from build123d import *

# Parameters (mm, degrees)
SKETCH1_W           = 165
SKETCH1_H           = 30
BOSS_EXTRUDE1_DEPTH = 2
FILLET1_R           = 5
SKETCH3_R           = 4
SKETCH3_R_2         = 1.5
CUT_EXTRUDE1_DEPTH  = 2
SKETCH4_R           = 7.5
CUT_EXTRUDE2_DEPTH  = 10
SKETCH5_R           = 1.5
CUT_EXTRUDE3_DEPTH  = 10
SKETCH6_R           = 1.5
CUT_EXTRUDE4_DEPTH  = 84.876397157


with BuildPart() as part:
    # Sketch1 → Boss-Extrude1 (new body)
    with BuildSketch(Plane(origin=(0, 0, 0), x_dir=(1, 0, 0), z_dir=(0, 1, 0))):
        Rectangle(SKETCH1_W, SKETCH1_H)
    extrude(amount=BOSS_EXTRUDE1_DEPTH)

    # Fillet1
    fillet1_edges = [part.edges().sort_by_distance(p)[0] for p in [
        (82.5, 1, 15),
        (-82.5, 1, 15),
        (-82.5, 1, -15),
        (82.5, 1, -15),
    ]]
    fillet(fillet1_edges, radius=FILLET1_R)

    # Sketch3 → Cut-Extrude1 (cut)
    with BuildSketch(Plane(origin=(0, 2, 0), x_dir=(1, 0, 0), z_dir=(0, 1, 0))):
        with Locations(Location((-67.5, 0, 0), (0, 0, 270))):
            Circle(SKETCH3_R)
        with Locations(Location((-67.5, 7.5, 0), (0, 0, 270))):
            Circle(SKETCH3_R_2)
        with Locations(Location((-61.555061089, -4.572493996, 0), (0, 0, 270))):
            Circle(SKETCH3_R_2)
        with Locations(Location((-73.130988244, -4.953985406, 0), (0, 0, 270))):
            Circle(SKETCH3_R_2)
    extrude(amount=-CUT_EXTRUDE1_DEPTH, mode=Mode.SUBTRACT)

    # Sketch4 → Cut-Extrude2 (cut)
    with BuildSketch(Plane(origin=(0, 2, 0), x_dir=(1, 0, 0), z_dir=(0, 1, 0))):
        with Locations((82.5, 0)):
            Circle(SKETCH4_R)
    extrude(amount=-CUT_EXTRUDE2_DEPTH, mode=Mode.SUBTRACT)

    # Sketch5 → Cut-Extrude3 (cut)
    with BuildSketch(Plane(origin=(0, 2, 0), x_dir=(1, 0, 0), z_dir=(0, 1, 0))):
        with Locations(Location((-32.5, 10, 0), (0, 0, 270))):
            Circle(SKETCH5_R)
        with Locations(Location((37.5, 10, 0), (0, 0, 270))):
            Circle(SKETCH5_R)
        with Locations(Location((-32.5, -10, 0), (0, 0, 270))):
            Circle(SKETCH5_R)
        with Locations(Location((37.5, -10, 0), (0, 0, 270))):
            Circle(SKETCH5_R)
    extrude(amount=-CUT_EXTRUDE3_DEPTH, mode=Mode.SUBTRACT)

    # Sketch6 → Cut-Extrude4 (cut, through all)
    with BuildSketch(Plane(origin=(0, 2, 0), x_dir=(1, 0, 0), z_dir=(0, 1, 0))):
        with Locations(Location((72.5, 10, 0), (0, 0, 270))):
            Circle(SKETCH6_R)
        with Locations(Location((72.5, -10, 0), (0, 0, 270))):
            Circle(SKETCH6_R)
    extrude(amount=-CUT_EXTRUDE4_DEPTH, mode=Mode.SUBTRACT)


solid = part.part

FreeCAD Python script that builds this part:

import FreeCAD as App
import Part
import Sketcher

V = App.Vector
Q = App.Units.Quantity


def edges_at(feature, points):
    """Names of the edges that pass closest to the given points."""
    edges = feature.Shape.Edges
    near = lambda p: min(range(len(edges)), key=lambda i: edges[i].distToShape(Part.Vertex(*p))[0])
    return sorted({f"Edge{near(p) + 1}" for p in points})


def add_polygon(sketch, points):
    """Adds a closed chain of lines whose ends are joined by coincident constraints."""
    first, n = sketch.GeometryCount, len(points)
    for a, b in zip(points, points[1:] + points[:1]):
        sketch.addGeometry(Part.LineSegment(App.Vector(*a, 0), App.Vector(*b, 0)), False)
    for i in range(n):
        sketch.addConstraint(Sketcher.Constraint("Coincident", first + i, 2, first + (i + 1) % n, 1))

doc = App.newDocument("Part")
params = doc.addObject("Spreadsheet::Sheet", "Params")
for row, (alias, value) in enumerate([
    ("sketch1_width", "165 mm"),
    ("sketch1_height", "30 mm"),
    ("pad1_length", "2 mm"),
    ("fillet_radius", "5 mm"),
    ("sketch2_diameter", "8 mm"),
    ("sketch2_diameter2", "3 mm"),
    ("pocket1_length", "2 mm"),
    ("sketch3_diameter", "15 mm"),
    ("pocket2_length", "10 mm"),
    ("sketch4_diameter", "3 mm"),
    ("pocket3_length", "10 mm"),
    ("sketch5_diameter", "3 mm"),
], start=1):
    params.set(f"A{row}", alias)
    params.set(f"B{row}", "=" + value)
    params.setAlias(f"B{row}", alias)

body = doc.addObject("PartDesign::Body", "Body")

# Sketch on XZ plane
sketch1 = body.newObject("Sketcher::SketchObject", "Sketch")
sketch1.AttachmentSupport = (doc.getObject("XZ_Plane"), [""])
sketch1.MapMode = "FlatFace"
add_polygon(sketch1, [(-82, -15), (-82, 15), (82, 15), (82, -15)])  # lines 0-3
sketch1.addConstraint([
    Sketcher.Constraint("Vertical", 0),
    Sketcher.Constraint("Horizontal", 1),
    Sketcher.Constraint("Vertical", 2),
    Sketcher.Constraint("Horizontal", 3),
    Sketcher.Constraint("Symmetric", 0, 2, 2, 2, -1, 1),
    Sketcher.Constraint("DistanceX", 1, 1, 1, 2, Q("165 mm")),
    Sketcher.Constraint("DistanceY", 0, 1, 0, 2, Q("30 mm")),
])
sketch1.setExpression("Constraints[9]", "Params.sketch1_width")
sketch1.setExpression("Constraints[10]", "Params.sketch1_height")
pad1 = body.newObject("PartDesign::Pad", "Pad")
pad1.Profile = sketch1
pad1.setExpression("Length", "Params.pad1_length")
pad1.Reversed = True
doc.recompute()

fillet = body.newObject("PartDesign::Fillet", "Fillet")
fillet.Base = (pad1, edges_at(pad1, [
    (82.5, 1, 15),
    (-82.5, 1, 15),
    (-82.5, 1, -15),
    (82.5, 1, -15),
]))
fillet.setExpression("Radius", "Params.fillet_radius")

# Sketch on XZ plane
sketch2 = body.newObject("Sketcher::SketchObject", "Sketch001")
sketch2.AttachmentSupport = (doc.getObject("XZ_Plane"), [""])
sketch2.MapMode = "FlatFace"
sketch2.AttachmentOffset = App.Placement(V(0, 0, -2), App.Rotation())
sketch2.addGeometry([
    Part.Circle(V(-67.5, 0, 0), V(0, 0, 1), 4),
    Part.Circle(V(-67.5, -7.5, 0), V(0, 0, 1), 1.5),
    Part.Circle(V(-61.6, 4.6, 0), V(0, 0, 1), 1.5),
    Part.Circle(V(-73.1, 5, 0), V(0, 0, 1), 1.5),
], False)
sketch2.addConstraint([
    Sketcher.Constraint("Equal", 1, 2),
    Sketcher.Constraint("Equal", 2, 3),
    Sketcher.Constraint("PointOnObject", 0, 3, -1),
    Sketcher.Constraint("Vertical", 0, 3, 1, 3),
    Sketcher.Constraint("Diameter", 0, Q("8 mm")),
    Sketcher.Constraint("Diameter", 1, Q("3 mm")),
    Sketcher.Constraint("DistanceX", 0, 3, -1, 1, Q("67.5 mm")),
    Sketcher.Constraint("DistanceY", 1, 3, -1, 1, Q("7.5 mm")),
    Sketcher.Constraint("DistanceX", 2, 3, -1, 1, Q("61.555061 mm")),
    Sketcher.Constraint("DistanceX", 3, 3, -1, 1, Q("73.130988 mm")),
    Sketcher.Constraint("DistanceY", 2, 3, 3, 3, Q("0.381491 mm")),
    Sketcher.Constraint("DistanceY", -1, 1, 2, 3, Q("4.572494 mm")),
])
sketch2.setExpression("Constraints[4]", "Params.sketch2_diameter")
sketch2.setExpression("Constraints[5]", "Params.sketch2_diameter2")
pocket1 = body.newObject("PartDesign::Pocket", "Pocket")
pocket1.Profile = sketch2
pocket1.setExpression("Length", "Params.pocket1_length")
pocket1.Reversed = True

# Sketch on XZ plane
sketch3 = body.newObject("Sketcher::SketchObject", "Sketch002")
sketch3.AttachmentSupport = (doc.getObject("XZ_Plane"), [""])
sketch3.MapMode = "FlatFace"
sketch3.AttachmentOffset = App.Placement(V(0, 0, -2), App.Rotation())
sketch3.addGeometry(Part.Circle(V(82, 0, 0), V(0, 0, 1), 8), False)
sketch3.addConstraint([
    Sketcher.Constraint("PointOnObject", 0, 3, -1),
    Sketcher.Constraint("Diameter", 0, Q("15 mm")),
    Sketcher.Constraint("DistanceX", -1, 1, 0, 3, Q("82.5 mm")),
])
sketch3.setExpression("Constraints[1]", "Params.sketch3_diameter")
pocket2 = body.newObject("PartDesign::Pocket", "Pocket001")
pocket2.Profile = sketch3
pocket2.setExpression("Length", "Params.pocket2_length")
pocket2.Reversed = True

# Sketch on XZ plane
sketch4 = body.newObject("Sketcher::SketchObject", "Sketch003")
sketch4.AttachmentSupport = (doc.getObject("XZ_Plane"), [""])
sketch4.MapMode = "FlatFace"
sketch4.AttachmentOffset = App.Placement(V(0, 0, -2), App.Rotation())
sketch4.addGeometry([
    Part.Circle(V(-32.5, -10, 0), V(0, 0, 1), 1.5),
    Part.Circle(V(37.5, -10, 0), V(0, 0, 1), 1.5),
    Part.Circle(V(-32.5, 10, 0), V(0, 0, 1), 1.5),
    Part.Circle(V(37.5, 10, 0), V(0, 0, 1), 1.5),
], False)
sketch4.addConstraint([
    Sketcher.Constraint("Equal", 0, 1),
    Sketcher.Constraint("Equal", 1, 2),
    Sketcher.Constraint("Equal", 2, 3),
    Sketcher.Constraint("Symmetric", 0, 3, 2, 3, -1),
    Sketcher.Constraint("Symmetric", 1, 3, 3, 3, -1),
    Sketcher.Constraint("Horizontal", 0, 3, 1, 3),
    Sketcher.Constraint("Diameter", 0, Q("3 mm")),
    Sketcher.Constraint("DistanceY", 0, 3, -1, 1, Q("10 mm")),
    Sketcher.Constraint("DistanceX", 0, 3, 1, 3, Q("70 mm")),
    Sketcher.Constraint("DistanceX", 0, 3, -1, 1, Q("32.5 mm")),
])
sketch4.setExpression("Constraints[6]", "Params.sketch4_diameter")
pocket3 = body.newObject("PartDesign::Pocket", "Pocket002")
pocket3.Profile = sketch4
pocket3.setExpression("Length", "Params.pocket3_length")
pocket3.Reversed = True

# Sketch on XZ plane
sketch5 = body.newObject("Sketcher::SketchObject", "Sketch004")
sketch5.AttachmentSupport = (doc.getObject("XZ_Plane"), [""])
sketch5.MapMode = "FlatFace"
sketch5.AttachmentOffset = App.Placement(V(0, 0, -2), App.Rotation())
sketch5.addGeometry([
    Part.Circle(V(72.5, -10, 0), V(0, 0, 1), 1.5),
    Part.Circle(V(72.5, 10, 0), V(0, 0, 1), 1.5),
], False)
sketch5.addConstraint([
    Sketcher.Constraint("Equal", 0, 1),
    Sketcher.Constraint("Symmetric", 0, 3, 1, 3, -1),
    Sketcher.Constraint("Diameter", 0, Q("3 mm")),
    Sketcher.Constraint("DistanceY", 0, 3, -1, 1, Q("10 mm")),
    Sketcher.Constraint("DistanceX", -1, 1, 0, 3, Q("72.5 mm")),
])
sketch5.setExpression("Constraints[2]", "Params.sketch5_diameter")
pocket4 = body.newObject("PartDesign::Pocket", "Pocket003")
pocket4.Profile = sketch5
pocket4.Type = "ThroughAll"
pocket4.Reversed = True

doc.recompute()
